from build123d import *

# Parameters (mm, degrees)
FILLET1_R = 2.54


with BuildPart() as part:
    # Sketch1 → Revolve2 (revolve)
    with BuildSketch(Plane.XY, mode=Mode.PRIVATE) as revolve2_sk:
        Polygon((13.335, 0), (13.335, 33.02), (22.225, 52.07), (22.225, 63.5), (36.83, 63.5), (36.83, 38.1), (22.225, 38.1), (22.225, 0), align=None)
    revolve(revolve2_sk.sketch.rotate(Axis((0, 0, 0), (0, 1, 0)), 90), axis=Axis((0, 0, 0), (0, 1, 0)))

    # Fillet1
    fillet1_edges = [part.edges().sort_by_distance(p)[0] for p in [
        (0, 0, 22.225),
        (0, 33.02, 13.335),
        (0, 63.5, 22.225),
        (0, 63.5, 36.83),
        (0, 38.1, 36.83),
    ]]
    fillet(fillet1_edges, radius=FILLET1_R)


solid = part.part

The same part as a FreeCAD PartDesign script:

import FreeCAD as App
import Part
import Sketcher

V = App.Vector
Q = App.Units.Quantity


def edges_at(feature, points):
    """Names of the edges that pass closest to the given points."""
    edges = feature.Shape.Edges
    near = lambda p: min(range(len(edges)), key=lambda i: edges[i].distToShape(Part.Vertex(*p))[0])
    return sorted({f"Edge{near(p) + 1}" for p in points})


def add_polygon(sketch, points):
    """Adds a closed chain of lines whose ends are joined by coincident constraints."""
    first, n = sketch.GeometryCount, len(points)
    for a, b in zip(points, points[1:] + points[:1]):
        sketch.addGeometry(Part.LineSegment(App.Vector(*a, 0), App.Vector(*b, 0)), False)
    for i in range(n):
        sketch.addConstraint(Sketcher.Constraint("Coincident", first + i, 2, first + (i + 1) % n, 1))

doc = App.newDocument("Part")
body = doc.addObject("PartDesign::Body", "Body")

# Sketch on XY plane
sketch1 = doc.addObject("Sketcher::SketchObject", "Sketch")
body.addObject(sketch1)
sketch1.AttachmentSupport = (doc.XY_Plane, [""])
sketch1.MapMode = "FlatFace"
add_polygon(sketch1, [(13, 33), (13, 0), (22, 0), (22, 38), (37, 38), (37, 64), (22, 64), (22, 52)])  # lines 0-7
sketch1.addConstraint(Sketcher.Constraint("Vertical", 0))
sketch1.addConstraint(Sketcher.Constraint("Horizontal", 1))
sketch1.addConstraint(Sketcher.Constraint("Vertical", 2))
sketch1.addConstraint(Sketcher.Constraint("Horizontal", 3))
sketch1.addConstraint(Sketcher.Constraint("Vertical", 4))
sketch1.addConstraint(Sketcher.Constraint("Horizontal", 5))
sketch1.addConstraint(Sketcher.Constraint("Vertical", 6))
sketch1.addConstraint(Sketcher.Constraint("PointOnObject", 0, 2, -1))
sketch1.addConstraint(Sketcher.Constraint("Vertical", 2, 2, 5, 2))
sketch1.addConstraint(Sketcher.Constraint("DistanceY", 4, 1, 4, 2, Q("1 in")))
sketch1.addConstraint(Sketcher.Constraint("DistanceY", 0, 2, 0, 1, Q("1.3 in")))
sketch1.addConstraint(Sketcher.Constraint("DistanceY", 2, 1, 2, 2, Q("1.5 in")))
sketch1.addConstraint(Sketcher.Constraint("DistanceX", 1, 1, 1, 2, Q("0.35 in")))
sketch1.addConstraint(Sketcher.Constraint("DistanceY", 6, 2, 6, 1, Q("0.45 in")))
sketch1.addConstraint(Sketcher.Constraint("DistanceX", 3, 1, 3, 2, Q("0.575 in")))
sketch1.addConstraint(Sketcher.Constraint("DistanceX", -1, 1, 3, 2, Q("1.45 in")))
revolution = doc.addObject("PartDesign::Revolution", "Revolution")
body.addObject(revolution)
revolution.Profile = sketch1
revolution.ReferenceAxis = (sketch1, ["V_Axis"])
revolution.Angle = 360
doc.recompute()

fillet = doc.addObject("PartDesign::Fillet", "Fillet")
body.addObject(fillet)
fillet.Base = (revolution, edges_at(revolution, [
    (0, 0, 22.225),
    (0, 33.02, 13.335),
    (0, 63.5, 22.225),
    (0, 63.5, 36.83),
    (0, 38.1, 36.83),
]))
fillet.Radius = Q("0.1 in")

doc.recompute()
